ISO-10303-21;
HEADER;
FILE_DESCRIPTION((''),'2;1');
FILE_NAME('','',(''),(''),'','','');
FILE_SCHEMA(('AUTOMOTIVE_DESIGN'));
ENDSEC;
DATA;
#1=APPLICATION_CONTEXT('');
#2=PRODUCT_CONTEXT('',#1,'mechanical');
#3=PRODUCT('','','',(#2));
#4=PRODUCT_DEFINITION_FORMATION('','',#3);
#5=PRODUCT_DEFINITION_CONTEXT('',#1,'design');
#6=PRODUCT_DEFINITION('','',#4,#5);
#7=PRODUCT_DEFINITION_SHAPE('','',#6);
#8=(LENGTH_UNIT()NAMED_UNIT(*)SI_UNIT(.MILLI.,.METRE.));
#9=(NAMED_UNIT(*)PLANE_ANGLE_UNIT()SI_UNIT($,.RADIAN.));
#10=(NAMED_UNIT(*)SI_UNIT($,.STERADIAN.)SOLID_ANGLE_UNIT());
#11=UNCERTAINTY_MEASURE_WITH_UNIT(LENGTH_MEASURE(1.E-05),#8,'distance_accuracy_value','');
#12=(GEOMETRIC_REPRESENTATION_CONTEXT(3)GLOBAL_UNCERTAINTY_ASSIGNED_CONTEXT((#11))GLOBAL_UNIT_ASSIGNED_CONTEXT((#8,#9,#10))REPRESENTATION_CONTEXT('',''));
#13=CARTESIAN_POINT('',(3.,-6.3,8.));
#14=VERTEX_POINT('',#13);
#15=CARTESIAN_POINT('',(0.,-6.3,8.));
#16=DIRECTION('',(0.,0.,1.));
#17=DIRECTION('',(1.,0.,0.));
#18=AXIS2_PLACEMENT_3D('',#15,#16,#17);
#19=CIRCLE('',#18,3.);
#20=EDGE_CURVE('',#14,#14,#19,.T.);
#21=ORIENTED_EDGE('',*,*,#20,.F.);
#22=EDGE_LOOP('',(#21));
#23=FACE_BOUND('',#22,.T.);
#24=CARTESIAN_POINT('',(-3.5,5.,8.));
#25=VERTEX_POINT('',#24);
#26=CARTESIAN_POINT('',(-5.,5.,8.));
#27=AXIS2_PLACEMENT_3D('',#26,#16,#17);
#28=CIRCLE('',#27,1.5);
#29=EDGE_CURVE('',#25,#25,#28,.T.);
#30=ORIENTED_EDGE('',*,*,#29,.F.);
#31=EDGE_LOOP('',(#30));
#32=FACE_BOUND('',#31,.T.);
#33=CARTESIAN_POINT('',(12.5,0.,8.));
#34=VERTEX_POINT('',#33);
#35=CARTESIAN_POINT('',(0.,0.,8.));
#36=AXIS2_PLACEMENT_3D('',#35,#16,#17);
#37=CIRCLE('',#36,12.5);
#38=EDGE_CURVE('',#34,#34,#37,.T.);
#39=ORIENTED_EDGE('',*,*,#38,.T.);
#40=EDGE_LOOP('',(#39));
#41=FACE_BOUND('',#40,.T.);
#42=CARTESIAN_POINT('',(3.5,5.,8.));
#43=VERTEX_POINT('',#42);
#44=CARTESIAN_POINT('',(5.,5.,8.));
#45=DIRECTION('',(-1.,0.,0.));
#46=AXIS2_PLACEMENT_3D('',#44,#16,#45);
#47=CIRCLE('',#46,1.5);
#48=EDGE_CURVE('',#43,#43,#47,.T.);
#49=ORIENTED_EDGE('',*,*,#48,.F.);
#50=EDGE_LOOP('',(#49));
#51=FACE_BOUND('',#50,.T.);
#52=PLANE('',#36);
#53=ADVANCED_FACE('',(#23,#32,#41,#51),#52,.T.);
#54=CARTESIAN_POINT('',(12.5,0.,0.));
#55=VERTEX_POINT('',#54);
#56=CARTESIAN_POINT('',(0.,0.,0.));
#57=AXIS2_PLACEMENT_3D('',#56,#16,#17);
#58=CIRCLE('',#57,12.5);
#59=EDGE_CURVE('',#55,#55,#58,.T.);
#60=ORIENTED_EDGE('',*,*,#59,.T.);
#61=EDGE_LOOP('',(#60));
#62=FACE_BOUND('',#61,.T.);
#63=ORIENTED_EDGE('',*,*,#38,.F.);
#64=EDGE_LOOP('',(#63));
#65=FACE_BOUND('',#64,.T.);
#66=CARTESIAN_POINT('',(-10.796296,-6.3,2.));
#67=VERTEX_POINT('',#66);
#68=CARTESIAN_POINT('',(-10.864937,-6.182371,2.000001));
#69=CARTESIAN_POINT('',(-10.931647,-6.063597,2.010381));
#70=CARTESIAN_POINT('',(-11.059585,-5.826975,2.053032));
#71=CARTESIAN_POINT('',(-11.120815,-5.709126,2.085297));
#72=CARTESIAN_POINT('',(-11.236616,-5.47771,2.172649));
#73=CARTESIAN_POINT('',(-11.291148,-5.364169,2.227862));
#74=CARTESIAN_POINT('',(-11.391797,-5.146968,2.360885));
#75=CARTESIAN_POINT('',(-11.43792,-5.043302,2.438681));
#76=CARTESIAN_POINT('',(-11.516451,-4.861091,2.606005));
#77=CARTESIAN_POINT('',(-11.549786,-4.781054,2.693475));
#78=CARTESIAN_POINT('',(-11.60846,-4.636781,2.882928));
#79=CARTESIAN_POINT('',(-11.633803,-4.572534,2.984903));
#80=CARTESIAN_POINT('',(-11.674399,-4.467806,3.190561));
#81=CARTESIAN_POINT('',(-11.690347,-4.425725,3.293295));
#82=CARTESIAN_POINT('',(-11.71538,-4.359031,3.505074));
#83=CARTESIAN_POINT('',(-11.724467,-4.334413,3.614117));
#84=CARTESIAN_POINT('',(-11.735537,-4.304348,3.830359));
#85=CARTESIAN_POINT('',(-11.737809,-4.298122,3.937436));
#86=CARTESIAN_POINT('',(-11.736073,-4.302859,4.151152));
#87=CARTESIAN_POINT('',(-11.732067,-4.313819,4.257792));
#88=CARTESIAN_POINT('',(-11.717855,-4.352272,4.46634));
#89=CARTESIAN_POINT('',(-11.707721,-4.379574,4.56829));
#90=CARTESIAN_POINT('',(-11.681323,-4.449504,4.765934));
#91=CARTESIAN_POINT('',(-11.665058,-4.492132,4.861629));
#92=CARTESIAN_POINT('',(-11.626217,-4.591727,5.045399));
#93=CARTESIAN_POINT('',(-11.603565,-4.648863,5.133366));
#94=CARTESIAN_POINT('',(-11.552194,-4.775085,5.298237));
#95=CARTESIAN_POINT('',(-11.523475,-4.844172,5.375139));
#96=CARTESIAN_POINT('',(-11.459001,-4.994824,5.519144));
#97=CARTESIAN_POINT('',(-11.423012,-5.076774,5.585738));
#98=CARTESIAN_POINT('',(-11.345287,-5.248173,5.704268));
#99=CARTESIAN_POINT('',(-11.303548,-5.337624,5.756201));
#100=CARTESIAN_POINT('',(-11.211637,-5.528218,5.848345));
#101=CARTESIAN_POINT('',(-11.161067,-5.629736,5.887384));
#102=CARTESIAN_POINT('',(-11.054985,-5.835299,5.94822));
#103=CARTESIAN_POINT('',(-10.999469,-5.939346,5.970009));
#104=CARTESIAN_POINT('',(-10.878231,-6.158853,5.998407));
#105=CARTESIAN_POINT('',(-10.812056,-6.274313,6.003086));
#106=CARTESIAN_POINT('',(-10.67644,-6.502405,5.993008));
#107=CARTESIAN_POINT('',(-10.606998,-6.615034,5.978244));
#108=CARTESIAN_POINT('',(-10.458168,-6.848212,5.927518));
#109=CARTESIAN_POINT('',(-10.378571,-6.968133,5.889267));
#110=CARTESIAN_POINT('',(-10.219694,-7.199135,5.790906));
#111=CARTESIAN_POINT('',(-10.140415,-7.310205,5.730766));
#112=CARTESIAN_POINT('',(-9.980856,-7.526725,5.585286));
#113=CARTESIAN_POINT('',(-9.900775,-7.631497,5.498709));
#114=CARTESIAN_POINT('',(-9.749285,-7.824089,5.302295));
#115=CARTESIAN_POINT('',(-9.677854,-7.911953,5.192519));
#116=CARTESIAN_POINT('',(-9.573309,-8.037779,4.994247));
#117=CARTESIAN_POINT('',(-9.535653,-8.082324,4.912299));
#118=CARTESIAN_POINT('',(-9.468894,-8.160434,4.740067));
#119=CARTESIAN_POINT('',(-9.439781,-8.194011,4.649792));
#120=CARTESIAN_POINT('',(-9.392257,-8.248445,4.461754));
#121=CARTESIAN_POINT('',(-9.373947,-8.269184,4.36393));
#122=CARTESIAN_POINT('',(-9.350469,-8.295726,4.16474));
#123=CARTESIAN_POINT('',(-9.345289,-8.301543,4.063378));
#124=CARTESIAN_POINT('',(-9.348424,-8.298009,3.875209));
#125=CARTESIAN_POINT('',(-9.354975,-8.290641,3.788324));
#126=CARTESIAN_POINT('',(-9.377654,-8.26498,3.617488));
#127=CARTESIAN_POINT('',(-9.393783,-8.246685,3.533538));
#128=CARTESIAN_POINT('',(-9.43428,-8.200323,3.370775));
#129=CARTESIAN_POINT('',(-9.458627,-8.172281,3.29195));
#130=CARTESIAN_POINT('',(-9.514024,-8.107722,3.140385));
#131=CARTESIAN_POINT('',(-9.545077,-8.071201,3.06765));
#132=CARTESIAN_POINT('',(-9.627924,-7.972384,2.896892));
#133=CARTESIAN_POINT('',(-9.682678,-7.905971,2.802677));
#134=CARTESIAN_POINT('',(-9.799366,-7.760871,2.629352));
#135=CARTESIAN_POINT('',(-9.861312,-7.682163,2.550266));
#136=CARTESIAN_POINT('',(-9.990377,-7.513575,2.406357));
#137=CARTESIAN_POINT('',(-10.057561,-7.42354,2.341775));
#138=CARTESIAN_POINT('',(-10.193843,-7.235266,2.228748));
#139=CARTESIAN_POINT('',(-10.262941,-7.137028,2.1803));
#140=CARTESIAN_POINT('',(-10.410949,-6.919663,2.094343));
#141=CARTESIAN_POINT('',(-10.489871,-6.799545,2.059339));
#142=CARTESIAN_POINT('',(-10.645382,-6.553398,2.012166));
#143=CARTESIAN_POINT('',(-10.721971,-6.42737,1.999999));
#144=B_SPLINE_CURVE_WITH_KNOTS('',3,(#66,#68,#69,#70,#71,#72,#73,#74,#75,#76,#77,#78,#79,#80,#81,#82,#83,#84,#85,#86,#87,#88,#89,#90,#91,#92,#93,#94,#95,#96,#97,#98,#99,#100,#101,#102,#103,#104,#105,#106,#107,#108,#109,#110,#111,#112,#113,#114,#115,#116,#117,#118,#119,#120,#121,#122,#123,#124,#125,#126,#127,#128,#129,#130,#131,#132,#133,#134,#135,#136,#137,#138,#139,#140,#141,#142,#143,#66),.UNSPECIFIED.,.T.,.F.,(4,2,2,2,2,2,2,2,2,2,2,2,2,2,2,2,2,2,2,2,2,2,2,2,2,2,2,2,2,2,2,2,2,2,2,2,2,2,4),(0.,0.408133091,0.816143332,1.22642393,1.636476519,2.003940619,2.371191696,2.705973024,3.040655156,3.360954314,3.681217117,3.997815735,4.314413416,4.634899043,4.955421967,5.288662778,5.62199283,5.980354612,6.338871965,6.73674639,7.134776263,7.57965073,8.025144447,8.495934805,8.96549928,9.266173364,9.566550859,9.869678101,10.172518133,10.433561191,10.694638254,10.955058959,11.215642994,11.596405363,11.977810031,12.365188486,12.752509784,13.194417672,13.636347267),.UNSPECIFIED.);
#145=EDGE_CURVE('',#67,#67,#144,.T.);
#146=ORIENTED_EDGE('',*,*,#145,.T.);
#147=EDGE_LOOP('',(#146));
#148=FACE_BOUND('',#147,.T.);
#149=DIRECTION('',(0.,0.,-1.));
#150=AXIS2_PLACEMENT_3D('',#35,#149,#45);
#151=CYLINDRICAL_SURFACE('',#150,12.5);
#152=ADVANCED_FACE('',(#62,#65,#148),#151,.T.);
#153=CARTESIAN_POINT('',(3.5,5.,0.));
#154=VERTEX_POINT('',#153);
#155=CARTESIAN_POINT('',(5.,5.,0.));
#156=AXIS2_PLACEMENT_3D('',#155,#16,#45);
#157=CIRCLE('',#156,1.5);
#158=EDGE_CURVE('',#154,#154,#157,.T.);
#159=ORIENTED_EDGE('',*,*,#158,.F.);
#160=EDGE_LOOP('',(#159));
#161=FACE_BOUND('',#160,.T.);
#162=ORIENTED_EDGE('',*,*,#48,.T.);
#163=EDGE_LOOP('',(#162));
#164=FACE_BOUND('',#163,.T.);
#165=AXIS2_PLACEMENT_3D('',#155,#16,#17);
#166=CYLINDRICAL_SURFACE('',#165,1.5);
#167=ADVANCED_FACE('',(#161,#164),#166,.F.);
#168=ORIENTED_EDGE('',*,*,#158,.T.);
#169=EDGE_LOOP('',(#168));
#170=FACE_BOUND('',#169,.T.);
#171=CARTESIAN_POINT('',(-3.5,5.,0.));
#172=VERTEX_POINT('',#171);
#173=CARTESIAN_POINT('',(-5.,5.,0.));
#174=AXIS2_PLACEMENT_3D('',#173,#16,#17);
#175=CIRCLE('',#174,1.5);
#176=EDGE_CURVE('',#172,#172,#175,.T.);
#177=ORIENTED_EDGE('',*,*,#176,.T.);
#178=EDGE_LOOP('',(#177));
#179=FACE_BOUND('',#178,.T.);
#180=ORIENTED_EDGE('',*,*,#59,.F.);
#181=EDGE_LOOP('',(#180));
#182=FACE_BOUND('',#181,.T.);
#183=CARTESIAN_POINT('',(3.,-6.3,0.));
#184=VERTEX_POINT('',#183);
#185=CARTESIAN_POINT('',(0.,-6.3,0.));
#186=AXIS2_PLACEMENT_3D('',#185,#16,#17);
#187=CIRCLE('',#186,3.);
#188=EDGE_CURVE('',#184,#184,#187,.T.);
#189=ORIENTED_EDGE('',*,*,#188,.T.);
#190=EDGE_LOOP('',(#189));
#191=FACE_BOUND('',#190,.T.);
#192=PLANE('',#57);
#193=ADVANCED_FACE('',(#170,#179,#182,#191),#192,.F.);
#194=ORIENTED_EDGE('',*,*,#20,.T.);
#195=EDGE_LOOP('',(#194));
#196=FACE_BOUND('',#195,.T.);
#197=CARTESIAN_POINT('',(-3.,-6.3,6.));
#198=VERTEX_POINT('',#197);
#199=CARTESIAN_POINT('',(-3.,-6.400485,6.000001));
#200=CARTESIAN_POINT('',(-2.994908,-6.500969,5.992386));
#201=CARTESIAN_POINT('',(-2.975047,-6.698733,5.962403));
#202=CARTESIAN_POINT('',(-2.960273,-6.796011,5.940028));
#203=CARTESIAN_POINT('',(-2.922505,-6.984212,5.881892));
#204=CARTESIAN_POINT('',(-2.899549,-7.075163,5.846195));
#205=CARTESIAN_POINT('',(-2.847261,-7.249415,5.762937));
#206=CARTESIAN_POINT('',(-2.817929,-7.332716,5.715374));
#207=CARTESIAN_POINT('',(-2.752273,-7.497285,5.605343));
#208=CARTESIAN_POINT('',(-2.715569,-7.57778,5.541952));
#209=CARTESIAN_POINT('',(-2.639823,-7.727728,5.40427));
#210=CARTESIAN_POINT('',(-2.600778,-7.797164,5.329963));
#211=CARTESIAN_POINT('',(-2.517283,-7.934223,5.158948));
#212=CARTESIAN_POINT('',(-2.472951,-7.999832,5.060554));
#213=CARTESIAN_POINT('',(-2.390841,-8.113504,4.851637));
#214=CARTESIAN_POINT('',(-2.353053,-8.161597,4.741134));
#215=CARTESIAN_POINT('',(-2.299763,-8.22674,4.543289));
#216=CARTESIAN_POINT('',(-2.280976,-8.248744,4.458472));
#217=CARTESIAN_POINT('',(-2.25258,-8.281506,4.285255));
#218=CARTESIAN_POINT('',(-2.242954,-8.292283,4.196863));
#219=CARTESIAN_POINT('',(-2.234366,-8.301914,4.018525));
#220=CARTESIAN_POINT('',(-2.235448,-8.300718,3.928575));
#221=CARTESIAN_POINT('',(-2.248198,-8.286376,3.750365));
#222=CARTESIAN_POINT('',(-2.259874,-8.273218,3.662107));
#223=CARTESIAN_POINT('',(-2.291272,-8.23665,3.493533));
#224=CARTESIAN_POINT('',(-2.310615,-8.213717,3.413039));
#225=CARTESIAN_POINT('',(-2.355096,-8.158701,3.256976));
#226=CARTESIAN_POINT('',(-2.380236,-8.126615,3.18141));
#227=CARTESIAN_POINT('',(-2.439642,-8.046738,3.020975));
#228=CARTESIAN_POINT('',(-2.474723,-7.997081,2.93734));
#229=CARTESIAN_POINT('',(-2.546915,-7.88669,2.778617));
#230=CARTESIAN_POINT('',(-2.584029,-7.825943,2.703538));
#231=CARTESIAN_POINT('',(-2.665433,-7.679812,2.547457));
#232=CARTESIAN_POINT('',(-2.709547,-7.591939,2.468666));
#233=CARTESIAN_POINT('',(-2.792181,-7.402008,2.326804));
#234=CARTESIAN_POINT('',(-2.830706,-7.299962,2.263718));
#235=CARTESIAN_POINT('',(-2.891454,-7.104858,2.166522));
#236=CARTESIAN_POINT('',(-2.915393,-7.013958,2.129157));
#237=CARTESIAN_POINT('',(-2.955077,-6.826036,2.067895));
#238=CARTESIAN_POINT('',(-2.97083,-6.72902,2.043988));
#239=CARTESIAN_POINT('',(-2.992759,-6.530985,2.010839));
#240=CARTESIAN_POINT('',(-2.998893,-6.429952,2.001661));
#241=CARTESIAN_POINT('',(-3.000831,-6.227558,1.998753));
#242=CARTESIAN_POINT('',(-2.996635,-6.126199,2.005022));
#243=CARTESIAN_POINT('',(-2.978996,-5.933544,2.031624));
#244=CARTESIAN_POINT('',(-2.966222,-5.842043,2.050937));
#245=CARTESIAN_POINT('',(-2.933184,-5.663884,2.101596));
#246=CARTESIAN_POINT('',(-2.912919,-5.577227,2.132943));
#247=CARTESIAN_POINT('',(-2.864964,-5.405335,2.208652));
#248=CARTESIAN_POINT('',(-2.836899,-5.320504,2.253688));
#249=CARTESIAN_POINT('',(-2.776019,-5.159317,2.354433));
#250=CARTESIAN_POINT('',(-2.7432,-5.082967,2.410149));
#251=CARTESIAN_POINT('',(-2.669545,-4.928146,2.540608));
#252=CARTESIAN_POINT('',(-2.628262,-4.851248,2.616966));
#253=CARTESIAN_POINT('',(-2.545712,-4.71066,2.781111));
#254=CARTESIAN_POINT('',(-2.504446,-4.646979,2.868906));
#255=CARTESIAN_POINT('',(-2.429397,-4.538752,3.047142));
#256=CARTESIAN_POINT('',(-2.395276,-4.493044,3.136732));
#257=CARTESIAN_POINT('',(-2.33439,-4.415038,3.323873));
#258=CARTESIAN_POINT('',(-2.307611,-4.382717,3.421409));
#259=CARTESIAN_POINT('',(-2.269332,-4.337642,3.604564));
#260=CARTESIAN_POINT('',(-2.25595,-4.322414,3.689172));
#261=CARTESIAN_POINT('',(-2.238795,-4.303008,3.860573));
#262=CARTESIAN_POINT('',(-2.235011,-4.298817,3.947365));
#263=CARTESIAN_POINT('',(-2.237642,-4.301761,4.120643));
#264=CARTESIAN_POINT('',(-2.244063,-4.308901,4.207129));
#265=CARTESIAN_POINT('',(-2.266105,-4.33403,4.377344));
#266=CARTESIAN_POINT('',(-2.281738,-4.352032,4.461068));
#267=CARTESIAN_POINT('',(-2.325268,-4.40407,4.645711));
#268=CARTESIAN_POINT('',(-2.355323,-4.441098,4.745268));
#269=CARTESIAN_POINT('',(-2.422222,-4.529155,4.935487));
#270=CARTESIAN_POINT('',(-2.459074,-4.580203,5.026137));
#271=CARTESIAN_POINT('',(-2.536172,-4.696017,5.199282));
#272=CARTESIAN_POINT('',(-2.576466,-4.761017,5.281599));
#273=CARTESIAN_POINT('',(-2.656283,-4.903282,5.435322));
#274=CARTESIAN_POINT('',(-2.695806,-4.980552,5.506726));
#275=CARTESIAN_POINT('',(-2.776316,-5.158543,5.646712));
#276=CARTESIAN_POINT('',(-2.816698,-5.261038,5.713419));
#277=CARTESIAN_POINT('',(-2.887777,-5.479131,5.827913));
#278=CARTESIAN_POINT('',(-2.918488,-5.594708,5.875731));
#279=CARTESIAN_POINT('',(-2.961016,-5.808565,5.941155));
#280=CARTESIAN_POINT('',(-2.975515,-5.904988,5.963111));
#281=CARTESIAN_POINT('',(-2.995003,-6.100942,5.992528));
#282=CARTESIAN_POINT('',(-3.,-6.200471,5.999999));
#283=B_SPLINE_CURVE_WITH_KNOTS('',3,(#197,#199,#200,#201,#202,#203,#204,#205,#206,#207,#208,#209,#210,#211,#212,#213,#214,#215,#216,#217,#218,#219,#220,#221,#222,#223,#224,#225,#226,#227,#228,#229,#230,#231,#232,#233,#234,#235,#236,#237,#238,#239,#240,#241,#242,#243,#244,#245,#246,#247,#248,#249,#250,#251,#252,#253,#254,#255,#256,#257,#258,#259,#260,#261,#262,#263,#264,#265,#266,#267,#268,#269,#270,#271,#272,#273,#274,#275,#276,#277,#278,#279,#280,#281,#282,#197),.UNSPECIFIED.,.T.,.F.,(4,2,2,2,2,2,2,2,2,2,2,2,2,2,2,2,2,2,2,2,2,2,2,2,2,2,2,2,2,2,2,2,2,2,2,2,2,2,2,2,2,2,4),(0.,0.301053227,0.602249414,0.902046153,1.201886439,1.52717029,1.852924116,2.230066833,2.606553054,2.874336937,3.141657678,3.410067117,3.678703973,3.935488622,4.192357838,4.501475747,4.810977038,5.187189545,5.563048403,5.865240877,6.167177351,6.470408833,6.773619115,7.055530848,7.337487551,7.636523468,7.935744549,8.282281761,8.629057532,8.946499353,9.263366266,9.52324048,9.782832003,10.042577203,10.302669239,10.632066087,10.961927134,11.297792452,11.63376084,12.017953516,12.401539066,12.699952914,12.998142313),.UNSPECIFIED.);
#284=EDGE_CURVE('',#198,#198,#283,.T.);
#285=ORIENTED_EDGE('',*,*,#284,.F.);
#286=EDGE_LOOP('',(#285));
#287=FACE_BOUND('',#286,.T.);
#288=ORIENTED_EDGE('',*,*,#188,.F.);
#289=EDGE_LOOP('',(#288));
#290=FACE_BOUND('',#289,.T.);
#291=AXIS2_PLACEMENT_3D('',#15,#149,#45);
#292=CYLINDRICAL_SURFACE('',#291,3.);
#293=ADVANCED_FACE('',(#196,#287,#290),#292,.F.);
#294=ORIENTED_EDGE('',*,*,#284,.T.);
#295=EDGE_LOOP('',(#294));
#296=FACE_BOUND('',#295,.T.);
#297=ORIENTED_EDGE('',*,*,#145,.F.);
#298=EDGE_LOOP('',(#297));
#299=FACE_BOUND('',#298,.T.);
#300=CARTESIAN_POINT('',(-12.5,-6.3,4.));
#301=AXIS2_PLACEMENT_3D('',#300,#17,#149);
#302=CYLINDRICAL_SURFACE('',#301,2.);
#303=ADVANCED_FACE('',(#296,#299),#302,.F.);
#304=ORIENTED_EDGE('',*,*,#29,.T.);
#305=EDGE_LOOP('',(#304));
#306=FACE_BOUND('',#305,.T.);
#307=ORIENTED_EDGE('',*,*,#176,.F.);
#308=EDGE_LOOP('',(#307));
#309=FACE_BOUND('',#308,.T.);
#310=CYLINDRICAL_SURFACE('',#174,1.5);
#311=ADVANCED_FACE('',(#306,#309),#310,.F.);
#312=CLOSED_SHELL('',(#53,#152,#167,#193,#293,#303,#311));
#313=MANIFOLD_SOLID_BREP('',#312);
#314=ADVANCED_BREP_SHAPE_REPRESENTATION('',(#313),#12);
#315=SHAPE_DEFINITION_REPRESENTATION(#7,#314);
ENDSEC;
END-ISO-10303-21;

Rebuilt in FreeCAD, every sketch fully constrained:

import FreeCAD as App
import Part
import Sketcher
from FreeCAD import Vector
Q = App.Units.Quantity

doc = App.newDocument("Part")
body = doc.addObject("PartDesign::Body", "Body")

sketch1 = doc.addObject("Sketcher::SketchObject", "Sketch")
body.addObject(sketch1)
sketch1.AttachmentSupport = (doc.XY_Plane, [""])
sketch1.MapMode = "FlatFace"
sketch1.addGeometry(Part.Circle(Vector(0, 0, 0), Vector(0, 0, 1), 12.5), False)
sketch1.addGeometry(Part.Circle(Vector(0, -6.3, 0), Vector(0, 0, 1), 3), False)
sketch1.addConstraint(Sketcher.Constraint("Coincident", 0, 3, -1, 1))
sketch1.addConstraint(Sketcher.Constraint("PointOnObject", 1, 3, -2))
sketch1.addConstraint(Sketcher.Constraint("Diameter", 0, Q("25 mm")))
sketch1.addConstraint(Sketcher.Constraint("Diameter", 1, Q("6 mm")))
sketch1.addConstraint(Sketcher.Constraint("DistanceY", 1, 3, -1, 1, Q("6.3 mm")))
pad1 = doc.addObject("PartDesign::Pad", "Pad")
body.addObject(pad1)
pad1.Profile = sketch1
pad1.Length = 8

sketch2 = doc.addObject("Sketcher::SketchObject", "Sketch001")
body.addObject(sketch2)
sketch2.AttachmentSupport = (doc.YZ_Plane, [""])
sketch2.MapMode = "FlatFace"
sketch2.addGeometry(Part.Circle(Vector(-6.3, 4, 0), Vector(0, 0, 1), 2), False)
sketch2.addConstraint(Sketcher.Constraint("Diameter", 0, Q("4 mm")))
sketch2.addConstraint(Sketcher.Constraint("DistanceY", -1, 1, 0, 3, Q("4 mm")))
sketch2.addConstraint(Sketcher.Constraint("DistanceX", 0, 3, -1, 1, Q("6.3 mm")))
pocket1 = doc.addObject("PartDesign::Pocket", "Pocket")
body.addObject(pocket1)
pocket1.Profile = sketch2
pocket1.Type = "ThroughAll"

sketch3 = doc.addObject("Sketcher::SketchObject", "Sketch002")
body.addObject(sketch3)
sketch3.AttachmentSupport = (doc.XY_Plane, [""])
sketch3.MapMode = "FlatFace"
sketch3.AttachmentOffset = App.Placement(Vector(0, 0, 8), App.Rotation())
sketch3.addGeometry(Part.Circle(Vector(-5, 5, 0), Vector(0, 0, 1), 1.5), False)
sketch3.addGeometry(Part.Circle(Vector(5, 5, 0), Vector(0, 0, 1), 1.5), False)
sketch3.addConstraint(Sketcher.Constraint("Equal", 0, 1))
sketch3.addConstraint(Sketcher.Constraint("Symmetric", 0, 3, 1, 3, -2))
sketch3.addConstraint(Sketcher.Constraint("Diameter", 0, Q("3 mm")))
sketch3.addConstraint(Sketcher.Constraint("DistanceX", 0, 3, -1, 1, Q("5 mm")))
sketch3.addConstraint(Sketcher.Constraint("DistanceY", -1, 1, 0, 3, Q("5 mm")))
pocket2 = doc.addObject("PartDesign::Pocket", "Pocket001")
body.addObject(pocket2)
pocket2.Profile = sketch3
pocket2.Type = "ThroughAll"

doc.recompute()
